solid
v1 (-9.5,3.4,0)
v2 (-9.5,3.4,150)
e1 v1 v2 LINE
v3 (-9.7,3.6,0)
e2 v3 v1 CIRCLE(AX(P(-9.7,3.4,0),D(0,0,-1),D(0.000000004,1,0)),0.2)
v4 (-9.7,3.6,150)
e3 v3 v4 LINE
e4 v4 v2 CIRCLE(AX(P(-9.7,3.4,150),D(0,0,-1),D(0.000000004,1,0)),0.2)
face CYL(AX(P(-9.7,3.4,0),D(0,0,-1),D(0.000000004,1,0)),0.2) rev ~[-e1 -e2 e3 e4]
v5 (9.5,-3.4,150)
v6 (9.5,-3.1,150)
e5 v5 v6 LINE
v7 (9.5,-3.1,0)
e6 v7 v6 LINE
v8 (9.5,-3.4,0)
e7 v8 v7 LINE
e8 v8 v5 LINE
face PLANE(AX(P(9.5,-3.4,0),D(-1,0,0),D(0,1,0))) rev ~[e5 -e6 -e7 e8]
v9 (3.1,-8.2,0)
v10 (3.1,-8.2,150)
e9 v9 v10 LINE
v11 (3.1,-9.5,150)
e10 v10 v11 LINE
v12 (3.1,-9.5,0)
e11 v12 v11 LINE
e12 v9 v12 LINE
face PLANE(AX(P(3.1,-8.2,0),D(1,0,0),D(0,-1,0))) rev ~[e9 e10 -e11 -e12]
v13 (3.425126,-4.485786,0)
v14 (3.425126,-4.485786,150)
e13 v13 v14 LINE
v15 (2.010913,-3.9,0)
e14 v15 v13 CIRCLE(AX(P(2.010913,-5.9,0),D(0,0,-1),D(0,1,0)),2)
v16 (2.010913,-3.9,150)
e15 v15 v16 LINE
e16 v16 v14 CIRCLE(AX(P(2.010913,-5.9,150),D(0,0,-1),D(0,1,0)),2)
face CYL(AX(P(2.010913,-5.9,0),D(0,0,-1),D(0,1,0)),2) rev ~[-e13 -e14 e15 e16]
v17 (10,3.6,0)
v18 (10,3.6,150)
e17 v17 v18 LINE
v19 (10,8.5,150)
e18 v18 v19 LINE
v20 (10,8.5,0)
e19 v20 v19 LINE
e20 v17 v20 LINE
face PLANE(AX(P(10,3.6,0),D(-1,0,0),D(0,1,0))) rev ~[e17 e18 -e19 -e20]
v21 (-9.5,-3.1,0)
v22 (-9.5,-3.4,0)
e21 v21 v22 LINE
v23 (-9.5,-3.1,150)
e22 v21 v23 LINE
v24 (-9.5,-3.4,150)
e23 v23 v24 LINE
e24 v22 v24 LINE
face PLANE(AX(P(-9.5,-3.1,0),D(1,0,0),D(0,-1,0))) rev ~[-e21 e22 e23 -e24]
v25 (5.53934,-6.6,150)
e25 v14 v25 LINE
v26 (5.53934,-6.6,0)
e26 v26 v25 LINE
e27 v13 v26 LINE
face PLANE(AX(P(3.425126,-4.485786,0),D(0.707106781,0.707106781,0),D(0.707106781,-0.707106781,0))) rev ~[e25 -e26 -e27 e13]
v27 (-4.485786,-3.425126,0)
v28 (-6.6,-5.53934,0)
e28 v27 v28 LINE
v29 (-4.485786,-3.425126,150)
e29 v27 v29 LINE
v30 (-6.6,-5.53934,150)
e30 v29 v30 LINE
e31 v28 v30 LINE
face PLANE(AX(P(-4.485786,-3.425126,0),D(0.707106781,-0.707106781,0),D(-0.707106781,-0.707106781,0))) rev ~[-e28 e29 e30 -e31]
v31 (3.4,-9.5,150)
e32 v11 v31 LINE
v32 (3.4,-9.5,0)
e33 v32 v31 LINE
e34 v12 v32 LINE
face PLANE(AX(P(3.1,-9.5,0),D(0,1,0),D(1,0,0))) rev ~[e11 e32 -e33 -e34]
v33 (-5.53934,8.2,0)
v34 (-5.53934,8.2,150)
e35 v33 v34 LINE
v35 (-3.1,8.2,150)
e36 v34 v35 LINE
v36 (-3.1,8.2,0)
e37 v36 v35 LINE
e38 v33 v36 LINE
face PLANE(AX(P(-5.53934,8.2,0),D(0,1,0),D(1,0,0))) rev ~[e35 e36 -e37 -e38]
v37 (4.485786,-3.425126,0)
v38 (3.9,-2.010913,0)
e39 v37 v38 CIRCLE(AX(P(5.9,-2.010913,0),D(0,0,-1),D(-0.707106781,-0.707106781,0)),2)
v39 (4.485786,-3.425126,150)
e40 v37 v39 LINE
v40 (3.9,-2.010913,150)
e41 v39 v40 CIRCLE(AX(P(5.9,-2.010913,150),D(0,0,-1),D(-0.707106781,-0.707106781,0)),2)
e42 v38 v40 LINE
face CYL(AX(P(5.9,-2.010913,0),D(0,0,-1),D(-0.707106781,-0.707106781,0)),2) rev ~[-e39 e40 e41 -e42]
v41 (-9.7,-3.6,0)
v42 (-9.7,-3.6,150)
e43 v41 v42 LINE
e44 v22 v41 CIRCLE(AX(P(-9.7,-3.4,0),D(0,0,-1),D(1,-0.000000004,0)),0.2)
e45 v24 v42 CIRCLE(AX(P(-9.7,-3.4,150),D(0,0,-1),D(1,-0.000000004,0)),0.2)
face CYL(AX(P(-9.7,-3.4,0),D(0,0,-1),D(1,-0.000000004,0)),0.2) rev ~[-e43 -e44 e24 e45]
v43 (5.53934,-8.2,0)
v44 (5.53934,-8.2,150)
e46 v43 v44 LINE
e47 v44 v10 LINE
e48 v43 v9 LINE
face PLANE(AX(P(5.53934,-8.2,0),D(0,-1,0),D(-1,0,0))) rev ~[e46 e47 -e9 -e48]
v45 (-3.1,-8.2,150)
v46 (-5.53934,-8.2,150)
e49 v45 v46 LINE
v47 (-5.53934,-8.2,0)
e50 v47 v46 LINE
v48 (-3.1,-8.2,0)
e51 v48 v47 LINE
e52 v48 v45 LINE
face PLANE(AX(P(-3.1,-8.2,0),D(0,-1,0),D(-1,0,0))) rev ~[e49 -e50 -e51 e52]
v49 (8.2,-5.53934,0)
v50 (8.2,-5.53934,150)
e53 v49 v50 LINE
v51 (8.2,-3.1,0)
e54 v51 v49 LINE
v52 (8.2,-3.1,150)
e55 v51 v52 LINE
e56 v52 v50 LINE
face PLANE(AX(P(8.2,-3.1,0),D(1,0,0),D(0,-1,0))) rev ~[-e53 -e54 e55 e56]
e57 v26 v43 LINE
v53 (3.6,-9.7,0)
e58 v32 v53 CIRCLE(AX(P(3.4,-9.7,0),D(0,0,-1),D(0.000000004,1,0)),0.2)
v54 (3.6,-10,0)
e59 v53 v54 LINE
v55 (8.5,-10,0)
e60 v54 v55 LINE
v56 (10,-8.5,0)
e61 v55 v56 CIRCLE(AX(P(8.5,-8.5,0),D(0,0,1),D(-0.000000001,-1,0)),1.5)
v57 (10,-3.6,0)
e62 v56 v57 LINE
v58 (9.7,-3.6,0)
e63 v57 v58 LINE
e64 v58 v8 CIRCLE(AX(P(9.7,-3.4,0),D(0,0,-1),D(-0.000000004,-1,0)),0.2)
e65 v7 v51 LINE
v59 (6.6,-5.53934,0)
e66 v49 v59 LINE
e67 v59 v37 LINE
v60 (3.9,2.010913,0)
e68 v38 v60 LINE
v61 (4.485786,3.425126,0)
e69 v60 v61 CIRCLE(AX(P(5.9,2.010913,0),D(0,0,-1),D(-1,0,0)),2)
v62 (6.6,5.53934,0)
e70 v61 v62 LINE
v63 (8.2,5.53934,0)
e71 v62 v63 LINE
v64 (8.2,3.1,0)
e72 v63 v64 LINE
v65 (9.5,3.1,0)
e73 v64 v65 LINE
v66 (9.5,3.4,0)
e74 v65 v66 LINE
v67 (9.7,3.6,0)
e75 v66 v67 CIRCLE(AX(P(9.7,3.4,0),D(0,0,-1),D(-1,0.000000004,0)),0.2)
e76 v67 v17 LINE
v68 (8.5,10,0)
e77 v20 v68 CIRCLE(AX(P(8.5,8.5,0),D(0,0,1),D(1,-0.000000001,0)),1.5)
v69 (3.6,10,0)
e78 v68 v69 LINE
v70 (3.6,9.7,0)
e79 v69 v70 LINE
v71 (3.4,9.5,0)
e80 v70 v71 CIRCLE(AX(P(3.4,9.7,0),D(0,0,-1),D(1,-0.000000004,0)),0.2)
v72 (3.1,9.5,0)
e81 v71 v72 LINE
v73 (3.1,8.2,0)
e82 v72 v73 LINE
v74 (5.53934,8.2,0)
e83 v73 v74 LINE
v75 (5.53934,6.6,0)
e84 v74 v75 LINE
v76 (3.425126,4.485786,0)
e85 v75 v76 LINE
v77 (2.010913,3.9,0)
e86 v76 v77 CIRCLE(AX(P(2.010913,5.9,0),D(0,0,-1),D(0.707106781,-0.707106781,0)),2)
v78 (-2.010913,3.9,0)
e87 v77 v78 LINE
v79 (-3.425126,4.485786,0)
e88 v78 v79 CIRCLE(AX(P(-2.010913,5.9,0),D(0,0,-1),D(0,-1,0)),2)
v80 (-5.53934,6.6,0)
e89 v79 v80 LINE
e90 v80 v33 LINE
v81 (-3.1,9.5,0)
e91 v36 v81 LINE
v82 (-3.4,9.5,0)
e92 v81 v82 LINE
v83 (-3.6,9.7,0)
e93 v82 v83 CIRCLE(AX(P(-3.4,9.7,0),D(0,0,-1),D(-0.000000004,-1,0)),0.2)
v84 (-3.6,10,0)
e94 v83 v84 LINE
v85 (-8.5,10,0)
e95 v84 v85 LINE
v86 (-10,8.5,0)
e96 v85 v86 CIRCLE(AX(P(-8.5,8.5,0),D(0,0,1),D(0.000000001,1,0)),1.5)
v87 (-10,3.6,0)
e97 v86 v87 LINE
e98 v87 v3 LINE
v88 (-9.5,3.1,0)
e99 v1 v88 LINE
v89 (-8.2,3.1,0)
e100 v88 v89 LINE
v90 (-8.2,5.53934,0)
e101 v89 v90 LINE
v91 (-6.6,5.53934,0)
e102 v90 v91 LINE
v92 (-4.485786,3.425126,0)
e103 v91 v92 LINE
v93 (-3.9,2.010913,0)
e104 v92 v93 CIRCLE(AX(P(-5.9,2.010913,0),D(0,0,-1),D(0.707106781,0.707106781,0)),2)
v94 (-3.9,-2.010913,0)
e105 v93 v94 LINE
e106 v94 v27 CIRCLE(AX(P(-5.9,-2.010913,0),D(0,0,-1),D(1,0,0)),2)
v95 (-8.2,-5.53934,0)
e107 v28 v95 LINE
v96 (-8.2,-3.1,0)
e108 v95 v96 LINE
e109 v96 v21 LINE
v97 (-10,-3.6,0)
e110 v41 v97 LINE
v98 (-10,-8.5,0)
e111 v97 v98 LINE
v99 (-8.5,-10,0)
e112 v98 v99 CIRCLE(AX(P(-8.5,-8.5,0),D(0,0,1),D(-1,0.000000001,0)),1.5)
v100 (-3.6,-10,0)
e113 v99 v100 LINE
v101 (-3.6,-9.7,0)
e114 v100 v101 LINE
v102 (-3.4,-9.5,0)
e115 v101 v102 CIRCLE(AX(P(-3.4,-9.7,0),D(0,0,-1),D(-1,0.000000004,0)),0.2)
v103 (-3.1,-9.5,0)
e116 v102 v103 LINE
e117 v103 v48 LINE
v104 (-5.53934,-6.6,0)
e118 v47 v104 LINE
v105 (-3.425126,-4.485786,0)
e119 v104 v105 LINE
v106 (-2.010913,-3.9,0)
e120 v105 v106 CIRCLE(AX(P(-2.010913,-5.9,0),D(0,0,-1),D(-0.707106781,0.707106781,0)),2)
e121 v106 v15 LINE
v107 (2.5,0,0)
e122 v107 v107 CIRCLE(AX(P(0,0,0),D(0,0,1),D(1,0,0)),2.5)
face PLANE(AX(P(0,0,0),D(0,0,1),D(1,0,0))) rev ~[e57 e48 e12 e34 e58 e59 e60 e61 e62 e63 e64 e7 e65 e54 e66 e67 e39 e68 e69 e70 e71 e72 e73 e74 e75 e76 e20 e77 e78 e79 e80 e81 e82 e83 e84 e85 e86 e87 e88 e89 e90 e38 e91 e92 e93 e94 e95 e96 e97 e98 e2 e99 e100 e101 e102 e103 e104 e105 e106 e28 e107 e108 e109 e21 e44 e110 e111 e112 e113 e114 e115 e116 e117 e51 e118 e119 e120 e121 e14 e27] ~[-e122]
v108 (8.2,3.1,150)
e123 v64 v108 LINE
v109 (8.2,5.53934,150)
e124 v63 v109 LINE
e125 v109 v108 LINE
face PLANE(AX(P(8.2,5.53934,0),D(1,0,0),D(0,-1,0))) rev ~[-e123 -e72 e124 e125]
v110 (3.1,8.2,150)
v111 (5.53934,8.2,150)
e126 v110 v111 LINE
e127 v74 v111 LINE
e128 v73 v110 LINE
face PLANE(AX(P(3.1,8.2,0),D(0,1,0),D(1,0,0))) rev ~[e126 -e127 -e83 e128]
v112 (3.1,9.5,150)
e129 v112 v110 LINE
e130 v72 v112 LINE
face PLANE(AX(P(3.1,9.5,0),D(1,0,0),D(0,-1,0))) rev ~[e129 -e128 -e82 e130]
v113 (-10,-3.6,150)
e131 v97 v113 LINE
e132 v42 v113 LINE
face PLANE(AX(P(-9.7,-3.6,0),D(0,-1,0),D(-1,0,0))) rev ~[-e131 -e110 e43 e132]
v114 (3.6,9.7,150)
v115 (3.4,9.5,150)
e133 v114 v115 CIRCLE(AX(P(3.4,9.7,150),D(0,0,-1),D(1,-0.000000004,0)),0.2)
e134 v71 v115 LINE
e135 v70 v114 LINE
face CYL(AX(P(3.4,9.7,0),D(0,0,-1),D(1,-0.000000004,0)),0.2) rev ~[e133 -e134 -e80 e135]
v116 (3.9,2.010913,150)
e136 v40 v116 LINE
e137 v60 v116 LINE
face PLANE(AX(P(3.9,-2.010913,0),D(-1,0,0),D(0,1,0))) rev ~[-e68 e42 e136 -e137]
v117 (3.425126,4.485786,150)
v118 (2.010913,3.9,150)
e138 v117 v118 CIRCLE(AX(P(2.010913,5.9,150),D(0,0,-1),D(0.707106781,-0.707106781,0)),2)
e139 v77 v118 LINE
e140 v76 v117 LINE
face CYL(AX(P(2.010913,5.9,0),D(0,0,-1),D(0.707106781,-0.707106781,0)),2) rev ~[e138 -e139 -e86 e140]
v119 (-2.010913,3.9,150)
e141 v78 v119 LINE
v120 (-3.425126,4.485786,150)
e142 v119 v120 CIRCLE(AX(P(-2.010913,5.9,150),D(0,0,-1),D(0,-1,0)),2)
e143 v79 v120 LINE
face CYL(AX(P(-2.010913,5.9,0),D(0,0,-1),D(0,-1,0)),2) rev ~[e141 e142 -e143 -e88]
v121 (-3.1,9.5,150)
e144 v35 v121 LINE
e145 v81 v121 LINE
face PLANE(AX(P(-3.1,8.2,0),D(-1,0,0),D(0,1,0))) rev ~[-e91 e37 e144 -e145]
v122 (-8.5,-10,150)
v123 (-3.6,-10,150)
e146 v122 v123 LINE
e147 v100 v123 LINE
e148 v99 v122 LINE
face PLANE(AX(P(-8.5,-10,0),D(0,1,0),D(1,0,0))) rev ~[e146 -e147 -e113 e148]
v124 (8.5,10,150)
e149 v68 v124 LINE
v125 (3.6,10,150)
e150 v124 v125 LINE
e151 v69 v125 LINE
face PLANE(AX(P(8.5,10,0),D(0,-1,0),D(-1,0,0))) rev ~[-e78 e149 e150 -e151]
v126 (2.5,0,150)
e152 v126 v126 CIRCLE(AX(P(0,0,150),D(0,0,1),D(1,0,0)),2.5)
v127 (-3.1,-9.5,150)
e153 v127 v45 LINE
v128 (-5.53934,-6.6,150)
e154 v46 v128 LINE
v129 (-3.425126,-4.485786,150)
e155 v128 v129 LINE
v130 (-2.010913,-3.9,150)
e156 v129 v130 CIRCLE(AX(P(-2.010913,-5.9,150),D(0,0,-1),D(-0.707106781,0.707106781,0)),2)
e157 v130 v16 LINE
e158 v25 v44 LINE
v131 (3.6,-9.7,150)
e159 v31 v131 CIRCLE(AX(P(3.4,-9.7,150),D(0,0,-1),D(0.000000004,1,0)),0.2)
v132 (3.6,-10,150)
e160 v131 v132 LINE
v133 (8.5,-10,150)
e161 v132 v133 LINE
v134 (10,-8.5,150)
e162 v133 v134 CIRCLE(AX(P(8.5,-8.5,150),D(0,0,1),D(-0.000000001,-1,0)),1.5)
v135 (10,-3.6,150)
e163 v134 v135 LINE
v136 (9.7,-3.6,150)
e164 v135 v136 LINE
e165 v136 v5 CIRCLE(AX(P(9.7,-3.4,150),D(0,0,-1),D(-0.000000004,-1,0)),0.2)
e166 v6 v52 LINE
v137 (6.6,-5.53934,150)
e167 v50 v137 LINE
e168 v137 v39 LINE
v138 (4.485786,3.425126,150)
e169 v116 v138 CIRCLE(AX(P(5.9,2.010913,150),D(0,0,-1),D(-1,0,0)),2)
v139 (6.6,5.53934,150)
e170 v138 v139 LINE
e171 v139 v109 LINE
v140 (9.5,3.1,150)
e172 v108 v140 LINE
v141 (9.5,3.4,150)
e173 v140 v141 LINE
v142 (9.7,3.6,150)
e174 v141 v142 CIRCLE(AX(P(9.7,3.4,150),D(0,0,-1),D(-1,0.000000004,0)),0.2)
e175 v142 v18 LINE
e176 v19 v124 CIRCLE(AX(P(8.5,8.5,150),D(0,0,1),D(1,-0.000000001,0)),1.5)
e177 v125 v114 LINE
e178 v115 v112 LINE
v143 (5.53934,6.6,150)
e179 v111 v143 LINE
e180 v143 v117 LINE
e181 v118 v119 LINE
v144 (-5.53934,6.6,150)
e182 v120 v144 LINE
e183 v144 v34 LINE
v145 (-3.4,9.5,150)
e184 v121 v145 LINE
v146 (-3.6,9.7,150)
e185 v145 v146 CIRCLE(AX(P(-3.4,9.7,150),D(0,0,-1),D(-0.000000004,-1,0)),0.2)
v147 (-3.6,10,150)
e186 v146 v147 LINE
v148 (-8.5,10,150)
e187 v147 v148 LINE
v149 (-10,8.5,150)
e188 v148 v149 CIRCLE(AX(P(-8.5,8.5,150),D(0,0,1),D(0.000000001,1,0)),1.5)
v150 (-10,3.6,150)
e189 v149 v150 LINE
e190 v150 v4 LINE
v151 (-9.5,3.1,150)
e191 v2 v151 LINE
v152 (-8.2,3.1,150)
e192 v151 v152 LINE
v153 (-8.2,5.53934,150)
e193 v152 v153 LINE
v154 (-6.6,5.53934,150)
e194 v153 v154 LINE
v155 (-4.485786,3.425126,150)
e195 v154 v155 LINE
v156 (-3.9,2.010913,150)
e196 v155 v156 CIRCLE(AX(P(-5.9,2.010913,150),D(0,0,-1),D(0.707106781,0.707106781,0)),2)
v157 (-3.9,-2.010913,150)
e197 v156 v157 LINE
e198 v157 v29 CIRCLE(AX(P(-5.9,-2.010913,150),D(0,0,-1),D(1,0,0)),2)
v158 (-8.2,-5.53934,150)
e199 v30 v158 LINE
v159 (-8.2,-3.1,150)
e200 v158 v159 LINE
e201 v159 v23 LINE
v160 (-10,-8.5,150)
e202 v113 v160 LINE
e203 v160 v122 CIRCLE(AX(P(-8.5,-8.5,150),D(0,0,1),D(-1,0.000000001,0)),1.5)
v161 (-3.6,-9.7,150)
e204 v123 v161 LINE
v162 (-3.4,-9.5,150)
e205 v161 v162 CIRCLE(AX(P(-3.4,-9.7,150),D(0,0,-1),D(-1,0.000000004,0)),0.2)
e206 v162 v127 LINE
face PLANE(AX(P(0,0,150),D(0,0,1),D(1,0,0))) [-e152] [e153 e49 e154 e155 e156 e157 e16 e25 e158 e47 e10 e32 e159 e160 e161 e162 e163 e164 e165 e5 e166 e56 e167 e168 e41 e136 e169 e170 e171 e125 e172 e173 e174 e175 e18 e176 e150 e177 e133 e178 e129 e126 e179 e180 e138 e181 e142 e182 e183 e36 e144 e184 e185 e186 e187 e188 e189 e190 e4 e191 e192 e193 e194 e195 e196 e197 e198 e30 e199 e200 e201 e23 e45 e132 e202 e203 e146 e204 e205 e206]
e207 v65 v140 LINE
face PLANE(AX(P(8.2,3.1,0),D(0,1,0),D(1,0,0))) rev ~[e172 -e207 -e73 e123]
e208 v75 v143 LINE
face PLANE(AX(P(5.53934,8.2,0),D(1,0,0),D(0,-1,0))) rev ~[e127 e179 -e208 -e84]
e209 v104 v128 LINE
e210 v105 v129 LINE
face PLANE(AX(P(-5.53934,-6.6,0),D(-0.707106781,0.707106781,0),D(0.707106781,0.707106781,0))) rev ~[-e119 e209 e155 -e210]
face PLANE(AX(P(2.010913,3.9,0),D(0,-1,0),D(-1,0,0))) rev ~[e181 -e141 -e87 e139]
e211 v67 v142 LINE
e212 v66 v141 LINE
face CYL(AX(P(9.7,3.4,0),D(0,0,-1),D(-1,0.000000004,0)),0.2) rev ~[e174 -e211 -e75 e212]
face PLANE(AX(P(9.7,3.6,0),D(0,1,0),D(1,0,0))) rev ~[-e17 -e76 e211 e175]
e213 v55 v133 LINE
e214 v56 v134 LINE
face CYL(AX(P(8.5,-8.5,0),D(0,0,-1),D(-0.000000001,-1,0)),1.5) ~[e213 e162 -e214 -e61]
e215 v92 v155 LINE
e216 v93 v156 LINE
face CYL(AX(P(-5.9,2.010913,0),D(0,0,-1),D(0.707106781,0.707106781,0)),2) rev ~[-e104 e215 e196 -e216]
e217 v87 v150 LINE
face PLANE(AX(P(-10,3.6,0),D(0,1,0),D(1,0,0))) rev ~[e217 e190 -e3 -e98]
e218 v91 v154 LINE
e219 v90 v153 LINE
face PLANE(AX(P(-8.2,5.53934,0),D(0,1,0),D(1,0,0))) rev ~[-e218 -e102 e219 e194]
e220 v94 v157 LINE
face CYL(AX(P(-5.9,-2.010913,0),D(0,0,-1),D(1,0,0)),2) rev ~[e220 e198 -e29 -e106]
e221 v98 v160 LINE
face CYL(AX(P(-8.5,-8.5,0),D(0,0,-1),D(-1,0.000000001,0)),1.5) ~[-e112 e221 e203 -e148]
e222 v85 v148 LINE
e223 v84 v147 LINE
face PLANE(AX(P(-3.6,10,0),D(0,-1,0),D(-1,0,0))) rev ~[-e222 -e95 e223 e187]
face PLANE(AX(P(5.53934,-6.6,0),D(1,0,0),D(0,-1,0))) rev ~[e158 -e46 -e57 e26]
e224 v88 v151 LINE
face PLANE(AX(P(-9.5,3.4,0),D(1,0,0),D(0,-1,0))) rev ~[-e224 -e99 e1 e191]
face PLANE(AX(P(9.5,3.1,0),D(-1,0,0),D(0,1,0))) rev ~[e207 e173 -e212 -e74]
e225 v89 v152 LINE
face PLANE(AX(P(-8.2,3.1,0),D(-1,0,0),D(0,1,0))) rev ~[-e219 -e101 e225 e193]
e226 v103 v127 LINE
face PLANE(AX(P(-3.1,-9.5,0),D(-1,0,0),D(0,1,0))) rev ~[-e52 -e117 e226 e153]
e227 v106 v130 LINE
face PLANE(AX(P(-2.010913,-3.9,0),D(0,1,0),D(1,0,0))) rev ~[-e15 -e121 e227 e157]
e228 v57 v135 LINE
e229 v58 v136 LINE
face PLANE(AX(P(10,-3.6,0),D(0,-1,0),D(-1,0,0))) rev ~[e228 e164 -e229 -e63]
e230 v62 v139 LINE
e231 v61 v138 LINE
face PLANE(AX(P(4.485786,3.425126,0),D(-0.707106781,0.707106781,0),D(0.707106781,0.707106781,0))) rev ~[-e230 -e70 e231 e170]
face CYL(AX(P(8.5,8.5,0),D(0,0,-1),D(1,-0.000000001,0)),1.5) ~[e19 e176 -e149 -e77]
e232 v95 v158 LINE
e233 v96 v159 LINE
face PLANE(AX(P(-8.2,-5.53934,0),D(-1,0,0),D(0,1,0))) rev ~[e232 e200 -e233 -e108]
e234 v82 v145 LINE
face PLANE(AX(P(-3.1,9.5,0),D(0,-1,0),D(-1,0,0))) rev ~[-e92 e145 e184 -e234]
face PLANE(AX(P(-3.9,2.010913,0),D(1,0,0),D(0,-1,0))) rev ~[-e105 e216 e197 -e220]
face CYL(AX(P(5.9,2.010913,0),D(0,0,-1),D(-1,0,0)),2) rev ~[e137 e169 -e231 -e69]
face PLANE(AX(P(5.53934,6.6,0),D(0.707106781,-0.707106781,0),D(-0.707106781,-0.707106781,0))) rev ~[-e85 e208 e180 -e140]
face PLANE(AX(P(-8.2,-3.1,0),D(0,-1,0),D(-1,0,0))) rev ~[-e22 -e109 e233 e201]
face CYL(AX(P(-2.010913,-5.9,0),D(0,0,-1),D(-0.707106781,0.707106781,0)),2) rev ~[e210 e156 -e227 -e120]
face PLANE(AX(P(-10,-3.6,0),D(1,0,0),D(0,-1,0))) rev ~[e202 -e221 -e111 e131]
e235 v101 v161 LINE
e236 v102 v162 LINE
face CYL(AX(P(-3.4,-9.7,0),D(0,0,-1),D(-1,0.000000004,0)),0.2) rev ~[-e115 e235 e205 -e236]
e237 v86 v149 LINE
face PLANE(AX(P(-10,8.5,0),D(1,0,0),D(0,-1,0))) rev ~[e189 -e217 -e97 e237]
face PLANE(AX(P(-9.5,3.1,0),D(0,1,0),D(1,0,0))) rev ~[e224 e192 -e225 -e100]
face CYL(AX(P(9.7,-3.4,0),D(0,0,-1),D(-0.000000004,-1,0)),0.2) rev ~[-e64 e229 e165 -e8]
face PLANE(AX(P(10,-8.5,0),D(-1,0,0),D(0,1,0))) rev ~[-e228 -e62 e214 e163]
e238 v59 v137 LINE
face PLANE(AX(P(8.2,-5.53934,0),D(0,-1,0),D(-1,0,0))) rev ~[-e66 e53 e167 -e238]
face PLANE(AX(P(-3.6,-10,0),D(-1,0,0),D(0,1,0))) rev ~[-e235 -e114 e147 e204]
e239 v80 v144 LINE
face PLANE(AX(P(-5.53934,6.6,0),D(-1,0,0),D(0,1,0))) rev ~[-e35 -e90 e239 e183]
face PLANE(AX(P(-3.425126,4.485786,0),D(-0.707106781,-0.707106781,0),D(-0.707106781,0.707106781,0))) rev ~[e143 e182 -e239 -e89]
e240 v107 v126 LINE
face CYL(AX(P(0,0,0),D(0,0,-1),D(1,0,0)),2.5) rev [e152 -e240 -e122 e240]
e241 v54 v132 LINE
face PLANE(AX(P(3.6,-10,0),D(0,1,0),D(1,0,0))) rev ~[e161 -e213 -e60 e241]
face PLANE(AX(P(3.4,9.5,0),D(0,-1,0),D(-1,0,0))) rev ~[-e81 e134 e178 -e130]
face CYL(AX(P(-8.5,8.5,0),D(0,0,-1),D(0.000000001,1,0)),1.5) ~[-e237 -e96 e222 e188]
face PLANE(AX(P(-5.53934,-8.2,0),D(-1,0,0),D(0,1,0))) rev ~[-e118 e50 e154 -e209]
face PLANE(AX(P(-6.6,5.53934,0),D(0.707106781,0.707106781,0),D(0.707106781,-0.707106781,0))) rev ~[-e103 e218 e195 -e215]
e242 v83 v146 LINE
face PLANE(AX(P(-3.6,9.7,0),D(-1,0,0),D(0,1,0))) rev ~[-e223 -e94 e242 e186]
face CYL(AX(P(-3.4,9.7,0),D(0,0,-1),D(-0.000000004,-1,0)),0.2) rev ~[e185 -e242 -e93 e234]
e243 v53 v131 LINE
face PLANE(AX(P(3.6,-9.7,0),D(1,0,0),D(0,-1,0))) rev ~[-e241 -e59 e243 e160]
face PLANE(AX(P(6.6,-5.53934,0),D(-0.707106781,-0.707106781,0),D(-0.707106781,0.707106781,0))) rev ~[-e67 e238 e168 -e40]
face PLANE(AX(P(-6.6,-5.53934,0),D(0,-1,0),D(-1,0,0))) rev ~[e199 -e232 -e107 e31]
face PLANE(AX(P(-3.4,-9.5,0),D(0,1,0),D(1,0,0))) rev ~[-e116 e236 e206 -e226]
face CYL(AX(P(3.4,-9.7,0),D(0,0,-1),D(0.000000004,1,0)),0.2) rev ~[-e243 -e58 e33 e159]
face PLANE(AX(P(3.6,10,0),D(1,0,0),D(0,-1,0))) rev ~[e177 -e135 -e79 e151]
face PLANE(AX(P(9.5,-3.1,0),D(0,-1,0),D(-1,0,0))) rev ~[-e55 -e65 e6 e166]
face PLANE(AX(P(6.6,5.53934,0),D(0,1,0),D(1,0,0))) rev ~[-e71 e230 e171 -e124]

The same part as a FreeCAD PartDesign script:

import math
import FreeCAD as App
import Part
import Sketcher
from FreeCAD import Vector

doc = App.newDocument("Part")
body = doc.addObject("PartDesign::Body", "Body")

# Sketch on XY plane
sketch1 = body.newObject("Sketcher::SketchObject", "Sketch")
sketch1.AttachmentSupport = (doc.getObject("XY_Plane"), [""])
sketch1.MapMode = "FlatFace"
sketch1.addGeometry(Part.ArcOfCircle(Part.Circle(Vector(-2.01, 5.9, 0), Vector(0, 0, 1), 2), math.radians(-135), math.radians(-90)), False)
sketch1.addGeometry(Part.LineSegment(Vector(-3.43, 4.49, 0), Vector(-5.54, 6.6, 0)), False)
sketch1.addGeometry(Part.LineSegment(Vector(-5.54, 6.6, 0), Vector(-5.54, 8.2, 0)), False)
sketch1.addGeometry(Part.LineSegment(Vector(-5.54, 8.2, 0), Vector(-3.1, 8.2, 0)), False)
sketch1.addGeometry(Part.LineSegment(Vector(-3.1, 8.2, 0), Vector(-3.1, 9.5, 0)), False)
sketch1.addGeometry(Part.LineSegment(Vector(-3.1, 9.5, 0), Vector(-3.4, 9.5, 0)), False)
sketch1.addGeometry(Part.ArcOfCircle(Part.Circle(Vector(-3.4, 9.7, 0), Vector(0, 0, 1), 0.2), math.radians(-180), math.radians(-90)), False)
sketch1.addGeometry(Part.LineSegment(Vector(-3.6, 9.7, 0), Vector(-3.6, 10, 0)), False)
sketch1.addGeometry(Part.LineSegment(Vector(-3.6, 10, 0), Vector(-8.5, 10, 0)), False)
sketch1.addGeometry(Part.ArcOfCircle(Part.Circle(Vector(-8.5, 8.5, 0), Vector(0, 0, 1), 1.5), math.radians(90), math.radians(180)), False)
sketch1.addGeometry(Part.LineSegment(Vector(-10, 8.5, 0), Vector(-10, 3.6, 0)), False)
sketch1.addGeometry(Part.LineSegment(Vector(-10, 3.6, 0), Vector(-9.7, 3.6, 0)), False)
sketch1.addGeometry(Part.ArcOfCircle(Part.Circle(Vector(-9.7, 3.4, 0), Vector(0, 0, 1), 0.2), math.radians(0), math.radians(90)), False)
sketch1.addGeometry(Part.LineSegment(Vector(-9.5, 3.4, 0), Vector(-9.5, 3.1, 0)), False)
sketch1.addGeometry(Part.LineSegment(Vector(-9.5, 3.1, 0), Vector(-8.2, 3.1, 0)), False)
sketch1.addGeometry(Part.LineSegment(Vector(-8.2, 3.1, 0), Vector(-8.2, 5.54, 0)), False)
sketch1.addGeometry(Part.LineSegment(Vector(-8.2, 5.54, 0), Vector(-6.6, 5.54, 0)), False)
sketch1.addGeometry(Part.LineSegment(Vector(-6.6, 5.54, 0), Vector(-4.49, 3.43, 0)), False)
sketch1.addGeometry(Part.ArcOfCircle(Part.Circle(Vector(-5.9, 2.01, 0), Vector(0, 0, 1), 2), math.radians(0), math.radians(45)), False)
sketch1.addGeometry(Part.LineSegment(Vector(-3.9, 2.01, 0), Vector(-3.9, -2.01, 0)), False)
sketch1.addGeometry(Part.ArcOfCircle(Part.Circle(Vector(-5.9, -2.01, 0), Vector(0, 0, 1), 2), math.radians(-45), math.radians(0)), False)
sketch1.addGeometry(Part.LineSegment(Vector(-4.49, -3.43, 0), Vector(-6.6, -5.54, 0)), False)
sketch1.addGeometry(Part.LineSegment(Vector(-6.6, -5.54, 0), Vector(-8.2, -5.54, 0)), False)
sketch1.addGeometry(Part.LineSegment(Vector(-8.2, -5.54, 0), Vector(-8.2, -3.1, 0)), False)
sketch1.addGeometry(Part.LineSegment(Vector(-8.2, -3.1, 0), Vector(-9.5, -3.1, 0)), False)
sketch1.addGeometry(Part.LineSegment(Vector(-9.5, -3.1, 0), Vector(-9.5, -3.4, 0)), False)
sketch1.addGeometry(Part.ArcOfCircle(Part.Circle(Vector(-9.7, -3.4, 0), Vector(0, 0, 1), 0.2), math.radians(-90), math.radians(0)), False)
sketch1.addGeometry(Part.LineSegment(Vector(-9.7, -3.6, 0), Vector(-10, -3.6, 0)), False)
sketch1.addGeometry(Part.LineSegment(Vector(-10, -3.6, 0), Vector(-10, -8.5, 0)), False)
sketch1.addGeometry(Part.ArcOfCircle(Part.Circle(Vector(-8.5, -8.5, 0), Vector(0, 0, 1), 1.5), math.radians(180), math.radians(270)), False)
sketch1.addGeometry(Part.LineSegment(Vector(-8.5, -10, 0), Vector(-3.6, -10, 0)), False)
sketch1.addGeometry(Part.LineSegment(Vector(-3.6, -10, 0), Vector(-3.6, -9.7, 0)), False)
sketch1.addGeometry(Part.ArcOfCircle(Part.Circle(Vector(-3.4, -9.7, 0), Vector(0, 0, 1), 0.2), math.radians(90), math.radians(180)), False)
sketch1.addGeometry(Part.LineSegment(Vector(-3.4, -9.5, 0), Vector(-3.1, -9.5, 0)), False)
sketch1.addGeometry(Part.LineSegment(Vector(-3.1, -9.5, 0), Vector(-3.1, -8.2, 0)), False)
sketch1.addGeometry(Part.LineSegment(Vector(-3.1, -8.2, 0), Vector(-5.54, -8.2, 0)), False)
sketch1.addGeometry(Part.LineSegment(Vector(-5.54, -8.2, 0), Vector(-5.54, -6.6, 0)), False)
sketch1.addGeometry(Part.LineSegment(Vector(-5.54, -6.6, 0), Vector(-3.43, -4.49, 0)), False)
sketch1.addGeometry(Part.ArcOfCircle(Part.Circle(Vector(-2.01, -5.9, 0), Vector(0, 0, 1), 2), math.radians(90), math.radians(135)), False)
sketch1.addGeometry(Part.LineSegment(Vector(-2.01, -3.9, 0), Vector(2.01, -3.9, 0)), False)
sketch1.addGeometry(Part.ArcOfCircle(Part.Circle(Vector(2.01, -5.9, 0), Vector(0, 0, 1), 2), math.radians(45), math.radians(90)), False)
sketch1.addGeometry(Part.LineSegment(Vector(3.43, -4.49, 0), Vector(5.54, -6.6, 0)), False)
sketch1.addGeometry(Part.LineSegment(Vector(5.54, -6.6, 0), Vector(5.54, -8.2, 0)), False)
sketch1.addGeometry(Part.LineSegment(Vector(5.54, -8.2, 0), Vector(3.1, -8.2, 0)), False)
sketch1.addGeometry(Part.LineSegment(Vector(3.1, -8.2, 0), Vector(3.1, -9.5, 0)), False)
sketch1.addGeometry(Part.LineSegment(Vector(3.1, -9.5, 0), Vector(3.4, -9.5, 0)), False)
sketch1.addGeometry(Part.ArcOfCircle(Part.Circle(Vector(3.4, -9.7, 0), Vector(0, 0, 1), 0.2), math.radians(0), math.radians(90)), False)
sketch1.addGeometry(Part.LineSegment(Vector(3.6, -9.7, 0), Vector(3.6, -10, 0)), False)
sketch1.addGeometry(Part.LineSegment(Vector(3.6, -10, 0), Vector(8.5, -10, 0)), False)
sketch1.addGeometry(Part.ArcOfCircle(Part.Circle(Vector(8.5, -8.5, 0), Vector(0, 0, 1), 1.5), math.radians(-90), math.radians(0)), False)
sketch1.addGeometry(Part.LineSegment(Vector(10, -8.5, 0), Vector(10, -3.6, 0)), False)
sketch1.addGeometry(Part.LineSegment(Vector(10, -3.6, 0), Vector(9.7, -3.6, 0)), False)
sketch1.addGeometry(Part.ArcOfCircle(Part.Circle(Vector(9.7, -3.4, 0), Vector(0, 0, 1), 0.2), math.radians(-180), math.radians(-90)), False)
sketch1.addGeometry(Part.LineSegment(Vector(9.5, -3.4, 0), Vector(9.5, -3.1, 0)), False)
sketch1.addGeometry(Part.LineSegment(Vector(9.5, -3.1, 0), Vector(8.2, -3.1, 0)), False)
sketch1.addGeometry(Part.LineSegment(Vector(8.2, -3.1, 0), Vector(8.2, -5.54, 0)), False)
sketch1.addGeometry(Part.LineSegment(Vector(8.2, -5.54, 0), Vector(6.6, -5.54, 0)), False)
sketch1.addGeometry(Part.LineSegment(Vector(6.6, -5.54, 0), Vector(4.49, -3.43, 0)), False)
sketch1.addGeometry(Part.ArcOfCircle(Part.Circle(Vector(5.9, -2.01, 0), Vector(0, 0, 1), 2), math.radians(180), math.radians(225)), False)
sketch1.addGeometry(Part.LineSegment(Vector(3.9, -2.01, 0), Vector(3.9, 2.01, 0)), False)
sketch1.addGeometry(Part.ArcOfCircle(Part.Circle(Vector(5.9, 2.01, 0), Vector(0, 0, 1), 2), math.radians(135), math.radians(180)), False)
sketch1.addGeometry(Part.LineSegment(Vector(4.49, 3.43, 0), Vector(6.6, 5.54, 0)), False)
sketch1.addGeometry(Part.LineSegment(Vector(6.6, 5.54, 0), Vector(8.2, 5.54, 0)), False)
sketch1.addGeometry(Part.LineSegment(Vector(8.2, 5.54, 0), Vector(8.2, 3.1, 0)), False)
sketch1.addGeometry(Part.LineSegment(Vector(8.2, 3.1, 0), Vector(9.5, 3.1, 0)), False)
sketch1.addGeometry(Part.LineSegment(Vector(9.5, 3.1, 0), Vector(9.5, 3.4, 0)), False)
sketch1.addGeometry(Part.ArcOfCircle(Part.Circle(Vector(9.7, 3.4, 0), Vector(0, 0, 1), 0.2), math.radians(90), math.radians(180)), False)
sketch1.addGeometry(Part.LineSegment(Vector(9.7, 3.6, 0), Vector(10, 3.6, 0)), False)
sketch1.addGeometry(Part.LineSegment(Vector(10, 3.6, 0), Vector(10, 8.5, 0)), False)
sketch1.addGeometry(Part.ArcOfCircle(Part.Circle(Vector(8.5, 8.5, 0), Vector(0, 0, 1), 1.5), math.radians(0), math.radians(90)), False)
sketch1.addGeometry(Part.LineSegment(Vector(8.5, 10, 0), Vector(3.6, 10, 0)), False)
sketch1.addGeometry(Part.LineSegment(Vector(3.6, 10, 0), Vector(3.6, 9.7, 0)), False)
sketch1.addGeometry(Part.ArcOfCircle(Part.Circle(Vector(3.4, 9.7, 0), Vector(0, 0, 1), 0.2), math.radians(-90), math.radians(0)), False)
sketch1.addGeometry(Part.LineSegment(Vector(3.4, 9.5, 0), Vector(3.1, 9.5, 0)), False)
sketch1.addGeometry(Part.LineSegment(Vector(3.1, 9.5, 0), Vector(3.1, 8.2, 0)), False)
sketch1.addGeometry(Part.LineSegment(Vector(3.1, 8.2, 0), Vector(5.54, 8.2, 0)), False)
sketch1.addGeometry(Part.LineSegment(Vector(5.54, 8.2, 0), Vector(5.54, 6.6, 0)), False)
sketch1.addGeometry(Part.LineSegment(Vector(5.54, 6.6, 0), Vector(3.43, 4.49, 0)), False)
sketch1.addGeometry(Part.ArcOfCircle(Part.Circle(Vector(2.01, 5.9, 0), Vector(0, 0, 1), 2), math.radians(-90), math.radians(-45)), False)
sketch1.addGeometry(Part.LineSegment(Vector(2.01, 3.9, 0), Vector(-2.01, 3.9, 0)), False)
sketch1.addGeometry(Part.Circle(Vector(0, 0, 0), Vector(0, 0, 1), 2.5), False)
sketch1.addConstraint(Sketcher.Constraint("Tangent", 0, 1, 1, 1))
sketch1.addConstraint(Sketcher.Constraint("Coincident", 1, 2, 2, 1))
sketch1.addConstraint(Sketcher.Constraint("Coincident", 2, 2, 3, 1))
sketch1.addConstraint(Sketcher.Constraint("Coincident", 3, 2, 4, 1))
sketch1.addConstraint(Sketcher.Constraint("Coincident", 4, 2, 5, 1))
sketch1.addConstraint(Sketcher.Constraint("Tangent", 5, 2, 6, 2))
sketch1.addConstraint(Sketcher.Constraint("Tangent", 6, 1, 7, 1))
sketch1.addConstraint(Sketcher.Constraint("Coincident", 7, 2, 8, 1))
sketch1.addConstraint(Sketcher.Constraint("Tangent", 8, 2, 9, 1))
sketch1.addConstraint(Sketcher.Constraint("Tangent", 9, 2, 10, 1))
sketch1.addConstraint(Sketcher.Constraint("Coincident", 10, 2, 11, 1))
sketch1.addConstraint(Sketcher.Constraint("Tangent", 11, 2, 12, 2))
sketch1.addConstraint(Sketcher.Constraint("Tangent", 12, 1, 13, 1))
sketch1.addConstraint(Sketcher.Constraint("Coincident", 13, 2, 14, 1))
sketch1.addConstraint(Sketcher.Constraint("Coincident", 14, 2, 15, 1))
sketch1.addConstraint(Sketcher.Constraint("Coincident", 15, 2, 16, 1))
sketch1.addConstraint(Sketcher.Constraint("Coincident", 16, 2, 17, 1))
sketch1.addConstraint(Sketcher.Constraint("Tangent", 17, 2, 18, 2))
sketch1.addConstraint(Sketcher.Constraint("Tangent", 18, 1, 19, 1))
sketch1.addConstraint(Sketcher.Constraint("Tangent", 19, 2, 20, 2))
sketch1.addConstraint(Sketcher.Constraint("Tangent", 20, 1, 21, 1))
sketch1.addConstraint(Sketcher.Constraint("Coincident", 21, 2, 22, 1))
sketch1.addConstraint(Sketcher.Constraint("Coincident", 22, 2, 23, 1))
sketch1.addConstraint(Sketcher.Constraint("Coincident", 23, 2, 24, 1))
sketch1.addConstraint(Sketcher.Constraint("Coincident", 24, 2, 25, 1))
sketch1.addConstraint(Sketcher.Constraint("Tangent", 25, 2, 26, 2))
sketch1.addConstraint(Sketcher.Constraint("Tangent", 26, 1, 27, 1))
sketch1.addConstraint(Sketcher.Constraint("Coincident", 27, 2, 28, 1))
sketch1.addConstraint(Sketcher.Constraint("Tangent", 28, 2, 29, 1))
sketch1.addConstraint(Sketcher.Constraint("Tangent", 29, 2, 30, 1))
sketch1.addConstraint(Sketcher.Constraint("Coincident", 30, 2, 31, 1))
sketch1.addConstraint(Sketcher.Constraint("Tangent", 31, 2, 32, 2))
sketch1.addConstraint(Sketcher.Constraint("Tangent", 32, 1, 33, 1))
sketch1.addConstraint(Sketcher.Constraint("Coincident", 33, 2, 34, 1))
sketch1.addConstraint(Sketcher.Constraint("Coincident", 34, 2, 35, 1))
sketch1.addConstraint(Sketcher.Constraint("Coincident", 35, 2, 36, 1))
sketch1.addConstraint(Sketcher.Constraint("Coincident", 36, 2, 37, 1))
sketch1.addConstraint(Sketcher.Constraint("Tangent", 37, 2, 38, 2))
sketch1.addConstraint(Sketcher.Constraint("Tangent", 38, 1, 39, 1))
sketch1.addConstraint(Sketcher.Constraint("Tangent", 39, 2, 40, 2))
sketch1.addConstraint(Sketcher.Constraint("Tangent", 40, 1, 41, 1))
sketch1.addConstraint(Sketcher.Constraint("Coincident", 41, 2, 42, 1))
sketch1.addConstraint(Sketcher.Constraint("Coincident", 42, 2, 43, 1))
sketch1.addConstraint(Sketcher.Constraint("Coincident", 43, 2, 44, 1))
sketch1.addConstraint(Sketcher.Constraint("Coincident", 44, 2, 45, 1))
sketch1.addConstraint(Sketcher.Constraint("Tangent", 45, 2, 46, 2))
sketch1.addConstraint(Sketcher.Constraint("Tangent", 46, 1, 47, 1))
sketch1.addConstraint(Sketcher.Constraint("Coincident", 47, 2, 48, 1))
sketch1.addConstraint(Sketcher.Constraint("Tangent", 48, 2, 49, 1))
sketch1.addConstraint(Sketcher.Constraint("Tangent", 49, 2, 50, 1))
sketch1.addConstraint(Sketcher.Constraint("Coincident", 50, 2, 51, 1))
sketch1.addConstraint(Sketcher.Constraint("Tangent", 51, 2, 52, 2))
sketch1.addConstraint(Sketcher.Constraint("Tangent", 52, 1, 53, 1))
sketch1.addConstraint(Sketcher.Constraint("Coincident", 53, 2, 54, 1))
sketch1.addConstraint(Sketcher.Constraint("Coincident", 54, 2, 55, 1))
sketch1.addConstraint(Sketcher.Constraint("Coincident", 55, 2, 56, 1))
sketch1.addConstraint(Sketcher.Constraint("Coincident", 56, 2, 57, 1))
sketch1.addConstraint(Sketcher.Constraint("Tangent", 57, 2, 58, 2))
sketch1.addConstraint(Sketcher.Constraint("Tangent", 58, 1, 59, 1))
sketch1.addConstraint(Sketcher.Constraint("Tangent", 59, 2, 60, 2))
sketch1.addConstraint(Sketcher.Constraint("Tangent", 60, 1, 61, 1))
sketch1.addConstraint(Sketcher.Constraint("Coincident", 61, 2, 62, 1))
sketch1.addConstraint(Sketcher.Constraint("Coincident", 62, 2, 63, 1))
sketch1.addConstraint(Sketcher.Constraint("Coincident", 63, 2, 64, 1))
sketch1.addConstraint(Sketcher.Constraint("Coincident", 64, 2, 65, 1))
sketch1.addConstraint(Sketcher.Constraint("Tangent", 65, 2, 66, 2))
sketch1.addConstraint(Sketcher.Constraint("Tangent", 66, 1, 67, 1))
sketch1.addConstraint(Sketcher.Constraint("Coincident", 67, 2, 68, 1))
sketch1.addConstraint(Sketcher.Constraint("Tangent", 68, 2, 69, 1))
sketch1.addConstraint(Sketcher.Constraint("Tangent", 69, 2, 70, 1))
sketch1.addConstraint(Sketcher.Constraint("Coincident", 70, 2, 71, 1))
sketch1.addConstraint(Sketcher.Constraint("Tangent", 71, 2, 72, 2))
sketch1.addConstraint(Sketcher.Constraint("Tangent", 72, 1, 73, 1))
sketch1.addConstraint(Sketcher.Constraint("Coincident", 73, 2, 74, 1))
sketch1.addConstraint(Sketcher.Constraint("Coincident", 74, 2, 75, 1))
sketch1.addConstraint(Sketcher.Constraint("Coincident", 75, 2, 76, 1))
sketch1.addConstraint(Sketcher.Constraint("Coincident", 76, 2, 77, 1))
sketch1.addConstraint(Sketcher.Constraint("Tangent", 77, 2, 78, 2))
sketch1.addConstraint(Sketcher.Constraint("Tangent", 78, 1, 79, 1))
sketch1.addConstraint(Sketcher.Constraint("Tangent", 79, 2, 0, 2))
sketch1.addConstraint(Sketcher.Constraint("Vertical", 2))
sketch1.addConstraint(Sketcher.Constraint("Horizontal", 3))
sketch1.addConstraint(Sketcher.Constraint("Vertical", 4))
sketch1.addConstraint(Sketcher.Constraint("Horizontal", 5))
sketch1.addConstraint(Sketcher.Constraint("Vertical", 7))
sketch1.addConstraint(Sketcher.Constraint("Horizontal", 8))
sketch1.addConstraint(Sketcher.Constraint("Vertical", 10))
sketch1.addConstraint(Sketcher.Constraint("Horizontal", 11))
sketch1.addConstraint(Sketcher.Constraint("Vertical", 13))
sketch1.addConstraint(Sketcher.Constraint("Horizontal", 14))
sketch1.addConstraint(Sketcher.Constraint("Vertical", 15))
sketch1.addConstraint(Sketcher.Constraint("Horizontal", 16))
sketch1.addConstraint(Sketcher.Constraint("Vertical", 19))
sketch1.addConstraint(Sketcher.Constraint("Horizontal", 22))
sketch1.addConstraint(Sketcher.Constraint("Vertical", 23))
sketch1.addConstraint(Sketcher.Constraint("Horizontal", 24))
sketch1.addConstraint(Sketcher.Constraint("Vertical", 25))
sketch1.addConstraint(Sketcher.Constraint("Horizontal", 27))
sketch1.addConstraint(Sketcher.Constraint("Vertical", 28))
sketch1.addConstraint(Sketcher.Constraint("Horizontal", 30))
sketch1.addConstraint(Sketcher.Constraint("Vertical", 31))
sketch1.addConstraint(Sketcher.Constraint("Horizontal", 33))
sketch1.addConstraint(Sketcher.Constraint("Vertical", 34))
sketch1.addConstraint(Sketcher.Constraint("Horizontal", 35))
sketch1.addConstraint(Sketcher.Constraint("Vertical", 36))
sketch1.addConstraint(Sketcher.Constraint("Horizontal", 39))
sketch1.addConstraint(Sketcher.Constraint("Vertical", 42))
sketch1.addConstraint(Sketcher.Constraint("Horizontal", 43))
sketch1.addConstraint(Sketcher.Constraint("Vertical", 44))
sketch1.addConstraint(Sketcher.Constraint("Horizontal", 45))
sketch1.addConstraint(Sketcher.Constraint("Vertical", 47))
sketch1.addConstraint(Sketcher.Constraint("Horizontal", 48))
sketch1.addConstraint(Sketcher.Constraint("Vertical", 50))
sketch1.addConstraint(Sketcher.Constraint("Horizontal", 51))
sketch1.addConstraint(Sketcher.Constraint("Vertical", 53))
sketch1.addConstraint(Sketcher.Constraint("Horizontal", 54))
sketch1.addConstraint(Sketcher.Constraint("Vertical", 55))
sketch1.addConstraint(Sketcher.Constraint("Horizontal", 56))
sketch1.addConstraint(Sketcher.Constraint("Vertical", 59))
sketch1.addConstraint(Sketcher.Constraint("Horizontal", 62))
sketch1.addConstraint(Sketcher.Constraint("Vertical", 63))
sketch1.addConstraint(Sketcher.Constraint("Horizontal", 64))
sketch1.addConstraint(Sketcher.Constraint("Vertical", 65))
sketch1.addConstraint(Sketcher.Constraint("Horizontal", 67))
sketch1.addConstraint(Sketcher.Constraint("Vertical", 68))
sketch1.addConstraint(Sketcher.Constraint("Horizontal", 70))
sketch1.addConstraint(Sketcher.Constraint("Vertical", 71))
sketch1.addConstraint(Sketcher.Constraint("Horizontal", 73))
sketch1.addConstraint(Sketcher.Constraint("Vertical", 74))
sketch1.addConstraint(Sketcher.Constraint("Horizontal", 75))
sketch1.addConstraint(Sketcher.Constraint("Vertical", 76))
sketch1.addConstraint(Sketcher.Constraint("Horizontal", 79))
sketch1.addConstraint(Sketcher.Constraint("Coincident", 80, 3, -1, 1))
sketch1.addConstraint(Sketcher.Constraint("Equal", 6, 12))
sketch1.addConstraint(Sketcher.Constraint("Equal", 0, 18))
sketch1.addConstraint(Sketcher.Constraint("Equal", 18, 20))
sketch1.addConstraint(Sketcher.Constraint("Equal", 12, 26))
sketch1.addConstraint(Sketcher.Constraint("Equal", 9, 29))
sketch1.addConstraint(Sketcher.Constraint("Equal", 26, 32))
sketch1.addConstraint(Sketcher.Constraint("Equal", 20, 38))
sketch1.addConstraint(Sketcher.Constraint("Equal", 38, 40))
sketch1.addConstraint(Sketcher.Constraint("Equal", 32, 46))
sketch1.addConstraint(Sketcher.Constraint("Equal", 29, 49))
sketch1.addConstraint(Sketcher.Constraint("Equal", 46, 52))
sketch1.addConstraint(Sketcher.Constraint("Equal", 40, 58))
sketch1.addConstraint(Sketcher.Constraint("Equal", 58, 60))
sketch1.addConstraint(Sketcher.Constraint("Equal", 52, 66))
sketch1.addConstraint(Sketcher.Constraint("Equal", 49, 69))
sketch1.addConstraint(Sketcher.Constraint("Equal", 66, 72))
sketch1.addConstraint(Sketcher.Constraint("Equal", 60, 78))
sketch1.addConstraint(Sketcher.Constraint("Symmetric", 0, 3, 40, 3, -1, 1))
sketch1.addConstraint(Sketcher.Constraint("Symmetric", 6, 3, 46, 3, -1, 1))
sketch1.addConstraint(Sketcher.Constraint("Symmetric", 9, 3, 49, 3, -1, 1))
sketch1.addConstraint(Sketcher.Constraint("Symmetric", 12, 3, 52, 3, -1, 1))
sketch1.addConstraint(Sketcher.Constraint("Symmetric", 18, 3, 58, 3, -1, 1))
sketch1.addConstraint(Sketcher.Constraint("Symmetric", 26, 3, 66, 3, -1, 1))
sketch1.addConstraint(Sketcher.Constraint("Symmetric", 29, 3, 69, 3, -1, 1))
sketch1.addConstraint(Sketcher.Constraint("Symmetric", 32, 3, 72, 3, -1, 1))
sketch1.addConstraint(Sketcher.Constraint("Symmetric", 1, 2, 41, 2, -1, 1))
sketch1.addConstraint(Sketcher.Constraint("Symmetric", 3, 2, 43, 2, -1, 1))
sketch1.addConstraint(Sketcher.Constraint("Symmetric", 14, 2, 54, 2, -1, 1))
sketch1.addConstraint(Sketcher.Constraint("Symmetric", 16, 2, 56, 2, -1, 1))
sketch1.addConstraint(Sketcher.Constraint("Symmetric", 20, 1, 60, 1, -1, 1))
sketch1.addConstraint(Sketcher.Constraint("Symmetric", 22, 2, 62, 2, -1, 1))
sketch1.addConstraint(Sketcher.Constraint("Symmetric", 34, 2, 74, 2, -1, 1))
sketch1.addConstraint(Sketcher.Constraint("Symmetric", 36, 2, 76, 2, -1, 1))
sketch1.addConstraint(Sketcher.Constraint("Symmetric", 32, 3, 46, 3, -2))
sketch1.addConstraint(Sketcher.Constraint("Symmetric", 29, 3, 49, 3, -2))
sketch1.addConstraint(Sketcher.Constraint("Symmetric", 26, 3, 52, 3, -2))
sketch1.addConstraint(Sketcher.Constraint("Symmetric", 37, 2, 40, 1, -2))
sketch1.addConstraint(Sketcher.Constraint("Symmetric", 35, 2, 42, 2, -2))
sketch1.addConstraint(Sketcher.Constraint("Symmetric", 23, 2, 54, 2, -2))
sketch1.addConstraint(Sketcher.Constraint("Symmetric", 21, 2, 56, 2, -2))
sketch1.addConstraint(Sketcher.Constraint("Parallel", 1, 17))
sketch1.addConstraint(Sketcher.Constraint("Perpendicular", 17, 21))
sketch1.addConstraint(Sketcher.Constraint("Parallel", 21, 37))
sketch1.addConstraint(Sketcher.Constraint("Parallel", 61, 77))
sketch1.addConstraint(Sketcher.Constraint("Horizontal", 14, 2, 63, 2))
sketch1.addConstraint(Sketcher.Constraint("Vertical", 4, 2, 33, 2))
sketch1.addConstraint(Sketcher.Constraint("Equal", 5, 11))
sketch1.addConstraint(Sketcher.Constraint("Equal", 62, 2))
sketch1.addConstraint(Sketcher.Constraint("Equal", 64, 4))
sketch1.addConstraint(Sketcher.Constraint("Equal", 73, 7))
sketch1.addConstraint(Sketcher.Constraint("Equal", 70, 10))
sketch1.addConstraint(Sketcher.Constraint("Equal", 7, 13))
sketch1.addConstraint(Sketcher.Constraint("Equal", 75, 15))
sketch1.addConstraint(Sketcher.Constraint("Equal", 79, 19))
sketch1.addConstraint(Sketcher.Constraint("Equal", 1, 17))
sketch1.addConstraint(Sketcher.Constraint("Diameter", 80, 5.0))
sketch1.addConstraint(Sketcher.Constraint("Radius", 0, 2.0))
sketch1.addConstraint(Sketcher.Constraint("Radius", 6, 0.2))
sketch1.addConstraint(Sketcher.Constraint("Radius", 9, 1.5))
sketch1.addConstraint(Sketcher.Constraint("DistanceX", 5, 2, 5, 1, 0.3))
sketch1.addConstraint(Sketcher.Constraint("DistanceX", 8, 2, 8, 1, 4.9))
sketch1.addConstraint(Sketcher.Constraint("DistanceX", 14, 1, 14, 2, 1.3))
sketch1.addConstraint(Sketcher.Constraint("DistanceX", 16, 1, 16, 2, 1.6))
sketch1.addConstraint(Sketcher.Constraint("DistanceY", -1, 1, 7, 2, 10.0))
sketch1.addConstraint(Sketcher.Constraint("DistanceY", -1, 1, 0, 3, 5.9))
sketch1.addConstraint(Sketcher.Constraint("DistanceX", 3, 1, 3, 2, 2.43934))
pad1 = body.newObject("PartDesign::Pad", "Pad")
pad1.Profile = sketch1
pad1.Length = 150

doc.recompute()
